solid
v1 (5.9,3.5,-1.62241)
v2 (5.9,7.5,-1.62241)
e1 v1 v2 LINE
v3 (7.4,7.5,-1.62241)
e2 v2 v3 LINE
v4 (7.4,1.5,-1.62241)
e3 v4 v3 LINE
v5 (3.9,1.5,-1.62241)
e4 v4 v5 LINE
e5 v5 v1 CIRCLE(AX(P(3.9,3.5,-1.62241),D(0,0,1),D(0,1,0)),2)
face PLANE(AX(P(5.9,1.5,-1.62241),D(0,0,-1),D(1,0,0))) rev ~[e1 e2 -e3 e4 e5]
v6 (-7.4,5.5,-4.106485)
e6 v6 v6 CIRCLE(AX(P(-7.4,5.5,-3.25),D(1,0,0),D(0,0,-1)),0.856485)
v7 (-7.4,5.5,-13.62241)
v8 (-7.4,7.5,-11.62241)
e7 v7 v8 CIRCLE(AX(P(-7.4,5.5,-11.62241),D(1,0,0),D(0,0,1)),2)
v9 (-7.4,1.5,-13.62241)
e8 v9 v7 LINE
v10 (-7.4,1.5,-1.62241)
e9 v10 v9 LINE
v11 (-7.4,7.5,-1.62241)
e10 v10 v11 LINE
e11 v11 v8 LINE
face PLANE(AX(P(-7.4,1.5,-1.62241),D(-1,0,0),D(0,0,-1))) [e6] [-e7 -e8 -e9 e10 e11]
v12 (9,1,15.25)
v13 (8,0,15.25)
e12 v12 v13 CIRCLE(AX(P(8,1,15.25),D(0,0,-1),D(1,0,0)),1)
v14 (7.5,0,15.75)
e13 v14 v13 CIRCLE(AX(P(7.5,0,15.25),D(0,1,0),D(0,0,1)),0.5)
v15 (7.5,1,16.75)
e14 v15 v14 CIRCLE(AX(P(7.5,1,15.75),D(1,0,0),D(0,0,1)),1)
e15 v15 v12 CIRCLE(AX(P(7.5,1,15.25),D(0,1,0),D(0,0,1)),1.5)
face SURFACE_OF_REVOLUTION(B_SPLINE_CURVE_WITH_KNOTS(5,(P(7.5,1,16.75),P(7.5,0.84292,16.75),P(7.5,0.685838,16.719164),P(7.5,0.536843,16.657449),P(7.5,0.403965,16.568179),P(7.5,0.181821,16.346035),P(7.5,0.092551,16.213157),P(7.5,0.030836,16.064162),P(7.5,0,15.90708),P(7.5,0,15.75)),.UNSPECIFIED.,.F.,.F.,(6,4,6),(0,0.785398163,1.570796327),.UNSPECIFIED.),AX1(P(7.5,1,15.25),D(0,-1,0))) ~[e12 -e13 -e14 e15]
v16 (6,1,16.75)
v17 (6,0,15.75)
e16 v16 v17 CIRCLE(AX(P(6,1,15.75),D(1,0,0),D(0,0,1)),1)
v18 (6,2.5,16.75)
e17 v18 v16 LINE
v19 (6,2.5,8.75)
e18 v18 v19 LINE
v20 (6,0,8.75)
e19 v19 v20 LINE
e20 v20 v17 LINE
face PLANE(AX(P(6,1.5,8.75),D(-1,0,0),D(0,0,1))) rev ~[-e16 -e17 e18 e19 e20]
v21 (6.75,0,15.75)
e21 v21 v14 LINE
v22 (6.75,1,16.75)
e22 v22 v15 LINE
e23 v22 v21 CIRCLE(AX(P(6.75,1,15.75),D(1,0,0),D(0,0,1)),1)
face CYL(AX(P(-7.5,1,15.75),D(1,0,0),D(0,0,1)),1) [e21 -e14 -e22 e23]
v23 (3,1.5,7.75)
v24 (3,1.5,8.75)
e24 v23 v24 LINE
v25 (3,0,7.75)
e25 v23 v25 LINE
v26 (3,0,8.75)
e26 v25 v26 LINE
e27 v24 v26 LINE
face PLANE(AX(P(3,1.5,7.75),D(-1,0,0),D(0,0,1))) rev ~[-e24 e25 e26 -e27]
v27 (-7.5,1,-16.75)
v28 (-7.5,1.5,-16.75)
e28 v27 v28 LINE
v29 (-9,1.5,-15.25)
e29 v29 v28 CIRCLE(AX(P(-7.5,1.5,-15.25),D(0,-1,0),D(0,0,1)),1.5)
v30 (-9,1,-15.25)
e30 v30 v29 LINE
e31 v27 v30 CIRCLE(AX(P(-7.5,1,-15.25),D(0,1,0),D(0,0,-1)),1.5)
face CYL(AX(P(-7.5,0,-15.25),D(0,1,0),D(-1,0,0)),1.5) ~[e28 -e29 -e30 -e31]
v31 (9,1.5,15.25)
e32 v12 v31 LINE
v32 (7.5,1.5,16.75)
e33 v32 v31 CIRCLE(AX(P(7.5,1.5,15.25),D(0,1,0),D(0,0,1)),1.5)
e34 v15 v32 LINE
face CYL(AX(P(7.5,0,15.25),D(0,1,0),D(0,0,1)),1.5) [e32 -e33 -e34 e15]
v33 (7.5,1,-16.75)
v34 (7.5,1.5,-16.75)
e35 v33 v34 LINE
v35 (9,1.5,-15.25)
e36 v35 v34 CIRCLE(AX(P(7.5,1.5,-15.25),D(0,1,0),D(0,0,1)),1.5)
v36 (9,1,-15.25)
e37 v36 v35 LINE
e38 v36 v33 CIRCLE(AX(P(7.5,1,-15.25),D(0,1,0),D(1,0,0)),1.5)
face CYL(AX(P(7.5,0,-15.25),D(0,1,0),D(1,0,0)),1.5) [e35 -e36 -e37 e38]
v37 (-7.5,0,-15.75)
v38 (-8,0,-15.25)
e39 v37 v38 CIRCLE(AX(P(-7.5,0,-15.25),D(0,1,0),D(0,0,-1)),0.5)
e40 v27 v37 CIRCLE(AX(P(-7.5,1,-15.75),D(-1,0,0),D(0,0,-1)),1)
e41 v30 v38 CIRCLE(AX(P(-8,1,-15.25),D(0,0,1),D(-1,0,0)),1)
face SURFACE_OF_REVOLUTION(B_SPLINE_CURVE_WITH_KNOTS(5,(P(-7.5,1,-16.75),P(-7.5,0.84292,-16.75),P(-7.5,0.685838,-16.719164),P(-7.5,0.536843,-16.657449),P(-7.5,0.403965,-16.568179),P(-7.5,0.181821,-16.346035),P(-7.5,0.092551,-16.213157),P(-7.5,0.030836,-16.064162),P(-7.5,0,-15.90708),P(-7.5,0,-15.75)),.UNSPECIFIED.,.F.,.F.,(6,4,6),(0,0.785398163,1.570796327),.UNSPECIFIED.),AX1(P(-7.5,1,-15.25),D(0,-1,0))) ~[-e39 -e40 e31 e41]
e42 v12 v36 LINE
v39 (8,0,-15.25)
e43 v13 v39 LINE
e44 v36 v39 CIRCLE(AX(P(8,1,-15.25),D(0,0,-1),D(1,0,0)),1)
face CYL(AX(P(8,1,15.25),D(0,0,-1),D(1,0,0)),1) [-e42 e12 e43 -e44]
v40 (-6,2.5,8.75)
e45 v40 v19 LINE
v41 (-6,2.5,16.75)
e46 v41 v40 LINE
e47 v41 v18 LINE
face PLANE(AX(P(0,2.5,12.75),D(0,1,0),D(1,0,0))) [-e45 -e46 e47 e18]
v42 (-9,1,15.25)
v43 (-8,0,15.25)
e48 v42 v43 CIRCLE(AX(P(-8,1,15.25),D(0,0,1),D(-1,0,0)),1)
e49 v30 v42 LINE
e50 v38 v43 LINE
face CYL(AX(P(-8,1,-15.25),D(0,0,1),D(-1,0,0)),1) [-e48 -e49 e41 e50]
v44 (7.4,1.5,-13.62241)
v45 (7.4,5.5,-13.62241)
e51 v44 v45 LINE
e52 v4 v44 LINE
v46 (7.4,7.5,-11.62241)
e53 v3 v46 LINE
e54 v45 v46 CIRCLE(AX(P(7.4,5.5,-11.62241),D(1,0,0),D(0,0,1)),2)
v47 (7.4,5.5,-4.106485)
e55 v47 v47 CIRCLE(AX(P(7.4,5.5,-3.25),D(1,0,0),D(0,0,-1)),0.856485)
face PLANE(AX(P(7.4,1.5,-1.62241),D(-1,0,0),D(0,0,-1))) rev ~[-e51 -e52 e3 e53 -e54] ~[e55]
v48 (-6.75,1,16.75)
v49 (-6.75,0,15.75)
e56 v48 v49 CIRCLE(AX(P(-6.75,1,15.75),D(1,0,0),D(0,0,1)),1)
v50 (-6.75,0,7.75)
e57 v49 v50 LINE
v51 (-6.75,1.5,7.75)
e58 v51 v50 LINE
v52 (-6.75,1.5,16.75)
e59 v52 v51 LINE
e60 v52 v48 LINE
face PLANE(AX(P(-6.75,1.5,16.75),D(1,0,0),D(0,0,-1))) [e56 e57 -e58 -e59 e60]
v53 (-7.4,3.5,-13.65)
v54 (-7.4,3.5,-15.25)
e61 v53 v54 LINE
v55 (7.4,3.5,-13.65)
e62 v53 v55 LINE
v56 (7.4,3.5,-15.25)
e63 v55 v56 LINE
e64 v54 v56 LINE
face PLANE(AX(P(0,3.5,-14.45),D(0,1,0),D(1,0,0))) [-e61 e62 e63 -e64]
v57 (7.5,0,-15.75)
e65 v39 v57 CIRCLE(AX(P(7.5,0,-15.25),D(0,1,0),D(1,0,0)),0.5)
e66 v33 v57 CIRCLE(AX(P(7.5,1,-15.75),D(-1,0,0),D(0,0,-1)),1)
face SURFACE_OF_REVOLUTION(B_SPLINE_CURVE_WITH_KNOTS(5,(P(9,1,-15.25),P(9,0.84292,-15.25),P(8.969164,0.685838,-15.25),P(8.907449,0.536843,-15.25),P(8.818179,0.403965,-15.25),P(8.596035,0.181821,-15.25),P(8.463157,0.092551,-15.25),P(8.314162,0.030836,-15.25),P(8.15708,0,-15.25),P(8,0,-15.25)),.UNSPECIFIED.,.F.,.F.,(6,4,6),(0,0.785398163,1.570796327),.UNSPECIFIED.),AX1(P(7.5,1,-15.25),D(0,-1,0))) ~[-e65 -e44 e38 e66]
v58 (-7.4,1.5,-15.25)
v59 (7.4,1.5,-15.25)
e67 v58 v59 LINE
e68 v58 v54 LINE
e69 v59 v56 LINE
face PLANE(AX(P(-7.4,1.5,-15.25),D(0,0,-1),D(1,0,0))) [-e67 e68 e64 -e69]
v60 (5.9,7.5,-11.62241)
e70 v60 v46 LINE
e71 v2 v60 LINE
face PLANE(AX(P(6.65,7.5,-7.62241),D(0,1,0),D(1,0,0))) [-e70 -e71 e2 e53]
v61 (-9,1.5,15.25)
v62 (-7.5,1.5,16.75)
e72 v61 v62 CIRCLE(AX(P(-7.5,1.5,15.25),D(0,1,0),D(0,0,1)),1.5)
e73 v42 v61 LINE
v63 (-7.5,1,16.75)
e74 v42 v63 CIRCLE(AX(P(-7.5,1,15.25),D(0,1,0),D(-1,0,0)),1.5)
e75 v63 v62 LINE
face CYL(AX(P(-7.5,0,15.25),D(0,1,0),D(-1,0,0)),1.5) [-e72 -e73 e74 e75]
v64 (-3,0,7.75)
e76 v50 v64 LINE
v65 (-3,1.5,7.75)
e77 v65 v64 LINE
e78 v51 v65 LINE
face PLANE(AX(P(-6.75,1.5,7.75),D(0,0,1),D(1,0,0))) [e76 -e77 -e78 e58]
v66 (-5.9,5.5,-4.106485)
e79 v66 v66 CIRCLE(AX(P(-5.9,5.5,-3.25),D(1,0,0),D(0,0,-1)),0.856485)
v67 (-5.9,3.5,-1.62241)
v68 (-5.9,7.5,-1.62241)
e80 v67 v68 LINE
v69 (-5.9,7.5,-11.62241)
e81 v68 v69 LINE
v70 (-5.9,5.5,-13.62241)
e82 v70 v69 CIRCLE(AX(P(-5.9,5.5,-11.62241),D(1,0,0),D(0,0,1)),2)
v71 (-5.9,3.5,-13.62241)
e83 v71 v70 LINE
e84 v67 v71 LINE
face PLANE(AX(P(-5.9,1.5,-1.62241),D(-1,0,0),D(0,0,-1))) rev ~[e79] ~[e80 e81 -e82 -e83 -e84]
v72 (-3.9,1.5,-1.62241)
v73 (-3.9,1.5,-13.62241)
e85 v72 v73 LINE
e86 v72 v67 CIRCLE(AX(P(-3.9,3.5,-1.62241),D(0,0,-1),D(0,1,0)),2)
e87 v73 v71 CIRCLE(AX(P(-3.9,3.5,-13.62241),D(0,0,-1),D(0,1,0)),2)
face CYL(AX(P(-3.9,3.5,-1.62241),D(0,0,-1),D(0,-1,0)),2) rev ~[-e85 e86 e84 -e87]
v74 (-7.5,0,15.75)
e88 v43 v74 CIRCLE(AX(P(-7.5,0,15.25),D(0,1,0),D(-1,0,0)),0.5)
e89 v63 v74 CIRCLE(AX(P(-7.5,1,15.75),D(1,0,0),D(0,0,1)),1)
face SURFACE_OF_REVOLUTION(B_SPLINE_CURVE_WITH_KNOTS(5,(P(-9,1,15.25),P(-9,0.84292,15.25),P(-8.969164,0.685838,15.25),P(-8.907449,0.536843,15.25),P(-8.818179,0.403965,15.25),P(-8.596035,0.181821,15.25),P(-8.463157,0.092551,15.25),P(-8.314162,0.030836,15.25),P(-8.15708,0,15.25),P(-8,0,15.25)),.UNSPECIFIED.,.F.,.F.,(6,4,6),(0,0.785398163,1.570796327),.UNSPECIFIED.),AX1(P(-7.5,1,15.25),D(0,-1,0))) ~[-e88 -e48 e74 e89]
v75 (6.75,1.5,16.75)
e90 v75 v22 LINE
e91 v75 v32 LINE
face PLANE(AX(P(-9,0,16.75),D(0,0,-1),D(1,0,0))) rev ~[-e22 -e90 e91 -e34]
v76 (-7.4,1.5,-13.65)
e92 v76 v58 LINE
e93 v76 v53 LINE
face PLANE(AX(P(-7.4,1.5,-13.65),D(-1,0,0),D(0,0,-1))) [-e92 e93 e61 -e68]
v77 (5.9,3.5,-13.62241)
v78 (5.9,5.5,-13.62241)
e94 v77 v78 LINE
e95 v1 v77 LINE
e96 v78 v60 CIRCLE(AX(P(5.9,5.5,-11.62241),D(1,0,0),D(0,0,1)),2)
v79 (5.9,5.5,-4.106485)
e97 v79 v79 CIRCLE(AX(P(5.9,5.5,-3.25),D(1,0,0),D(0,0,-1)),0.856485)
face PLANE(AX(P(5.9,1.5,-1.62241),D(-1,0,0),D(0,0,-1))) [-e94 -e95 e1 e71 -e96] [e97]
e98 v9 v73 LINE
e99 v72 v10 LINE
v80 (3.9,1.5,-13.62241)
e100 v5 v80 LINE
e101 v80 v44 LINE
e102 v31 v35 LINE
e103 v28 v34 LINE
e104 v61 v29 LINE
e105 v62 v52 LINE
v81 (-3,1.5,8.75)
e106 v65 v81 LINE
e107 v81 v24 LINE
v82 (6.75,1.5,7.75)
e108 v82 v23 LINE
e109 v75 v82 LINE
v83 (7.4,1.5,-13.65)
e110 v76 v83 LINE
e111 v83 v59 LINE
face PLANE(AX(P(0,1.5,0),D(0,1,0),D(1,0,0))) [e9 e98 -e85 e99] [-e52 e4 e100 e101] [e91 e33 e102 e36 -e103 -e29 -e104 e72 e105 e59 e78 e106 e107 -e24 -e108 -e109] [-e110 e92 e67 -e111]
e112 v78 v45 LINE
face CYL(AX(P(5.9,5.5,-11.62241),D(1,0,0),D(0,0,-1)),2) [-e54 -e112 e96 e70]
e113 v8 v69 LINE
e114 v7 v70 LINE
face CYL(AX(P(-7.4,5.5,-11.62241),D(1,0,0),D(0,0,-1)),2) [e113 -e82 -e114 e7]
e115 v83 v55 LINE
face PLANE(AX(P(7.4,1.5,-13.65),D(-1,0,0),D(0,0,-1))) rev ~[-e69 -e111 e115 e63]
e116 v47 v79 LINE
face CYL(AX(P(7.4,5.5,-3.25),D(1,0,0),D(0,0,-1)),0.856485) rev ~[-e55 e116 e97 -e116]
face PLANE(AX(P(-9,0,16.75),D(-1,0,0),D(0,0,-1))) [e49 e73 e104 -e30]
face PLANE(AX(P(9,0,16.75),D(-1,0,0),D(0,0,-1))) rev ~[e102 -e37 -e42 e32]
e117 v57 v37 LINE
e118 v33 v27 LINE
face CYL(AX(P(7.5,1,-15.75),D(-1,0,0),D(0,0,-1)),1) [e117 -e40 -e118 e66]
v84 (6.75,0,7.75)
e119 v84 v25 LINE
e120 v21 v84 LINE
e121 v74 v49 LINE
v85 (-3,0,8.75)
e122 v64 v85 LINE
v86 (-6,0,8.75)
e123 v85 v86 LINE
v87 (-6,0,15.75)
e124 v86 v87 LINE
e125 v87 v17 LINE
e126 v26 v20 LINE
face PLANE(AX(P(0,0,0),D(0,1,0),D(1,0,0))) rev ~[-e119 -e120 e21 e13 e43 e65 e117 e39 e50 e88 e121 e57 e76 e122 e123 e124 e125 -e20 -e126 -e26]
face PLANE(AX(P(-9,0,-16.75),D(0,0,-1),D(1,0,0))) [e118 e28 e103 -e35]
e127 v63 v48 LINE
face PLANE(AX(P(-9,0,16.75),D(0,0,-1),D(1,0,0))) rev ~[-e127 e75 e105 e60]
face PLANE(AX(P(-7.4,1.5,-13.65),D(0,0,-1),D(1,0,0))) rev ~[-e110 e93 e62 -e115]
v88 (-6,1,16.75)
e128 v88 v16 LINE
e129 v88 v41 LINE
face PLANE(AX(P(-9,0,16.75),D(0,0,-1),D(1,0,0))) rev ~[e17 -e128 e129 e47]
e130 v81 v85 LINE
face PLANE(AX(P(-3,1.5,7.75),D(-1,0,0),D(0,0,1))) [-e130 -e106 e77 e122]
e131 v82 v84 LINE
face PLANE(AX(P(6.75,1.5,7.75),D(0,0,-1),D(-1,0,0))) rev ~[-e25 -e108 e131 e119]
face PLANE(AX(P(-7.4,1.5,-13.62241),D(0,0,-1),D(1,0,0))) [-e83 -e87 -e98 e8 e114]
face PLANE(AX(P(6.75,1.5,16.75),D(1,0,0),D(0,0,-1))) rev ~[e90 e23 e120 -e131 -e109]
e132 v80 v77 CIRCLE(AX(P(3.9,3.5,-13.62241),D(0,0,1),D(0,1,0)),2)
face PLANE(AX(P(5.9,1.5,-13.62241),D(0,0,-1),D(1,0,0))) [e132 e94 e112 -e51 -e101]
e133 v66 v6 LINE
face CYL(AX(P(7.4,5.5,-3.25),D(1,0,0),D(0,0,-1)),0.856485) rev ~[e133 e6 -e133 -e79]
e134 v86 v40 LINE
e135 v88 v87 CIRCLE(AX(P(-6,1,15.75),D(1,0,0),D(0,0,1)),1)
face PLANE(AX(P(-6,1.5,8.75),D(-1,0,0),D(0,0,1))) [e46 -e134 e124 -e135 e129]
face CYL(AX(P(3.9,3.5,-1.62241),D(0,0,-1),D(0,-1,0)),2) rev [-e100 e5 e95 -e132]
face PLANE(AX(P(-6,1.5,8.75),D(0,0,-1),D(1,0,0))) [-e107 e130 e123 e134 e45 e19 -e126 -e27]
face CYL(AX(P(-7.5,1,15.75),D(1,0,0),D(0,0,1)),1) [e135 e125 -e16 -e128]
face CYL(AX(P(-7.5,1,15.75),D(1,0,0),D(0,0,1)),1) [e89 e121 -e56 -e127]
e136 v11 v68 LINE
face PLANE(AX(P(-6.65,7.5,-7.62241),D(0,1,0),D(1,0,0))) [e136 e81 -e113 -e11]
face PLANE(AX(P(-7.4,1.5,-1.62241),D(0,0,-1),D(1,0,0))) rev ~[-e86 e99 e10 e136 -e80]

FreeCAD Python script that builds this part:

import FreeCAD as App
import Part
import Sketcher

V = App.Vector


def edges_at(feature, points):
    """Names of the edges that pass closest to the given points."""
    edges = feature.Shape.Edges
    near = lambda p: min(range(len(edges)), key=lambda i: edges[i].distToShape(Part.Vertex(*p))[0])
    return sorted({f"Edge{near(p) + 1}" for p in points})


def add_polygon(sketch, points):
    """Adds a closed chain of lines whose ends are joined by coincident constraints."""
    first, n = sketch.GeometryCount, len(points)
    for a, b in zip(points, points[1:] + points[:1]):
        sketch.addGeometry(Part.LineSegment(App.Vector(*a, 0), App.Vector(*b, 0)), False)
    for i in range(n):
        sketch.addConstraint(Sketcher.Constraint("Coincident", first + i, 2, first + (i + 1) % n, 1))

doc = App.newDocument("Part")
body = doc.addObject("PartDesign::Body", "Body")

# Sketch on XZ plane
sketch1 = body.newObject("Sketcher::SketchObject", "Sketch")
sketch1.AttachmentSupport = (doc.getObject("XZ_Plane"), [""])
sketch1.MapMode = "FlatFace"
add_polygon(sketch1, [(-9, -17), (-9, 17), (9, 17), (9, -17)])  # lines 0-3
sketch1.addConstraint(Sketcher.Constraint("Vertical", 0))
sketch1.addConstraint(Sketcher.Constraint("Horizontal", 1))
sketch1.addConstraint(Sketcher.Constraint("Vertical", 2))
sketch1.addConstraint(Sketcher.Constraint("Horizontal", 3))
sketch1.addConstraint(Sketcher.Constraint("Symmetric", 0, 2, 2, 2, -1, 1))
sketch1.addConstraint(Sketcher.Constraint("DistanceX", 1, 1, 1, 2, 18.0))
sketch1.addConstraint(Sketcher.Constraint("DistanceY", 0, 1, 0, 2, 33.5))
pad1 = body.newObject("PartDesign::Pad", "Pad")
pad1.Profile = sketch1
pad1.Length = 1.5
pad1.Reversed = True
doc.recompute()

fillet = body.newObject("PartDesign::Fillet", "Fillet")
fillet.Base = (pad1, edges_at(pad1, [
    (-9, 0.75, -16.75),
    (9, 0.75, -16.75),
    (9, 0.75, 16.75),
    (-9, 0.75, 16.75),
]))
fillet.Radius = 1.5

# Sketch on XZ plane
sketch2 = body.newObject("Sketcher::SketchObject", "Sketch001")
sketch2.AttachmentSupport = (doc.getObject("XZ_Plane"), [""])
sketch2.MapMode = "FlatFace"
sketch2.AttachmentOffset = App.Placement(V(0, 0, -1.5), App.Rotation())
add_polygon(sketch2, [(-7.4, -13.6), (-7.4, -1.6), (-5.9, -1.6), (-5.9, -13.6)])  # lines 0-3
add_polygon(sketch2, [(5.9, -13.6), (5.9, -1.6), (7.4, -1.6), (7.4, -13.6)])  # lines 4-7
sketch2.addConstraint(Sketcher.Constraint("Vertical", 0))
sketch2.addConstraint(Sketcher.Constraint("Horizontal", 1))
sketch2.addConstraint(Sketcher.Constraint("Vertical", 2))
sketch2.addConstraint(Sketcher.Constraint("Horizontal", 3))
sketch2.addConstraint(Sketcher.Constraint("Vertical", 4))
sketch2.addConstraint(Sketcher.Constraint("Horizontal", 5))
sketch2.addConstraint(Sketcher.Constraint("Vertical", 6))
sketch2.addConstraint(Sketcher.Constraint("Horizontal", 7))
sketch2.addConstraint(Sketcher.Constraint("Symmetric", 1, 2, 4, 2, -2))
sketch2.addConstraint(Sketcher.Constraint("Symmetric", 3, 2, 6, 2, -2))
sketch2.addConstraint(Sketcher.Constraint("DistanceY", 0, 1, 0, 2, 12.0))
sketch2.addConstraint(Sketcher.Constraint("DistanceX", 1, 1, 1, 2, 1.5))
sketch2.addConstraint(Sketcher.Constraint("DistanceX", 0, 2, -1, 1, 7.4))
sketch2.addConstraint(Sketcher.Constraint("DistanceY", 0, 2, -1, 1, 1.62241))
pad2 = body.newObject("PartDesign::Pad", "Pad001")
pad2.Profile = sketch2
pad2.Length = 6
pad2.Reversed = True

# Sketch on XZ plane
sketch3 = body.newObject("Sketcher::SketchObject", "Sketch002")
sketch3.AttachmentSupport = (doc.getObject("XZ_Plane"), [""])
sketch3.MapMode = "FlatFace"
sketch3.AttachmentOffset = App.Placement(V(0, 0, -1.5), App.Rotation())
add_polygon(sketch3, [(-7.4, -15.2), (-7.4, -13.7), (7.4, -13.7), (7.4, -15.2)])  # lines 0-3
sketch3.addConstraint(Sketcher.Constraint("Vertical", 0))
sketch3.addConstraint(Sketcher.Constraint("Horizontal", 1))
sketch3.addConstraint(Sketcher.Constraint("Vertical", 2))
sketch3.addConstraint(Sketcher.Constraint("Horizontal", 3))
sketch3.addConstraint(Sketcher.Constraint("DistanceX", 1, 1, 1, 2, 14.8))
sketch3.addConstraint(Sketcher.Constraint("DistanceY", 0, 1, 0, 2, 1.6))
sketch3.addConstraint(Sketcher.Constraint("DistanceX", 0, 2, -1, 1, 7.4))
sketch3.addConstraint(Sketcher.Constraint("DistanceY", 0, 2, -1, 1, 13.65))
pad3 = body.newObject("PartDesign::Pad", "Pad002")
pad3.Profile = sketch3
pad3.Length = 2
pad3.Reversed = True
doc.recompute()

fillet2 = body.newObject("PartDesign::Fillet", "Fillet001")
fillet2.Base = (pad3, edges_at(pad3, [
    (-5.9, 1.5, -7.622),
    (-6.65, 7.5, -13.622),
    (5.9, 1.5, -7.622),
    (6.65, 7.5, -13.622),
]))
fillet2.Radius = 2

# Sketch on YZ plane
sketch4 = body.newObject("Sketcher::SketchObject", "Sketch003")
sketch4.AttachmentSupport = (doc.getObject("YZ_Plane"), [""])
sketch4.MapMode = "FlatFace"
sketch4.AttachmentOffset = App.Placement(V(0, 0, 7.4), App.Rotation())
sketch4.addGeometry(Part.Circle(V(5.5, -3.2, 0), V(0, 0, 1), 0.9), False)
sketch4.addConstraint(Sketcher.Constraint("DistanceX", -1, 1, 0, 3, 5.5))
sketch4.addConstraint(Sketcher.Constraint("Diameter", 0, 1.71297))
sketch4.addConstraint(Sketcher.Constraint("DistanceY", 0, 3, -1, 1, 3.25))
pocket1 = body.newObject("PartDesign::Pocket", "Pocket")
pocket1.Profile = sketch4
pocket1.Length = 18

# Sketch on XZ plane
sketch5 = body.newObject("Sketcher::SketchObject", "Sketch004")
sketch5.AttachmentSupport = (doc.getObject("XZ_Plane"), [""])
sketch5.MapMode = "FlatFace"
sketch5.AttachmentOffset = App.Placement(V(0, 0, -1.5), App.Rotation())
add_polygon(sketch5, [(-6, 9), (-6, 17), (6, 17), (6, 9)])  # lines 0-3
sketch5.addConstraint(Sketcher.Constraint("Vertical", 0))
sketch5.addConstraint(Sketcher.Constraint("Horizontal", 1))
sketch5.addConstraint(Sketcher.Constraint("Vertical", 2))
sketch5.addConstraint(Sketcher.Constraint("Horizontal", 3))
sketch5.addConstraint(Sketcher.Constraint("DistanceX", 1, 1, 1, 2, 12.0))
sketch5.addConstraint(Sketcher.Constraint("DistanceY", 0, 1, 0, 2, 8.0))
sketch5.addConstraint(Sketcher.Constraint("DistanceX", 0, 2, -1, 1, 6.0))
sketch5.addConstraint(Sketcher.Constraint("DistanceY", -1, 1, 0, 2, 16.75))
pad4 = body.newObject("PartDesign::Pad", "Pad003")
pad4.Profile = sketch5
pad4.Length = 1
pad4.Reversed = True
doc.recompute()

fillet3 = body.newObject("PartDesign::Fillet", "Fillet002")
fillet3.Base = (pad4, edges_at(pad4, [
    (9, 0, 0),
    (-9, 0, 0),
    (0, 0, -16.75),
    (0, 0, 16.75),
    (-8.561, 0, -16.311),
    (8.561, 0, -16.311),
    (-8.561, 0, 16.311),
    (8.561, 0, 16.311),
]))
fillet3.Radius = 1

# Sketch on XZ plane
sketch6 = body.newObject("Sketcher::SketchObject", "Sketch005")
sketch6.AttachmentSupport = (doc.getObject("XZ_Plane"), [""])
sketch6.MapMode = "FlatFace"
sketch6.AttachmentOffset = App.Placement(V(0, 0, -1.5), App.Rotation())
add_polygon(sketch6, [(-6.8, 16.8), (-6, 16.8), (-6, 8.8), (-3, 8.8), (-3, 7.8), (-6.8, 7.8)])  # lines 0-5
add_polygon(sketch6, [(6, 8.8), (6, 16.8), (6.8, 16.8), (6.8, 7.8), (3, 7.8), (3, 8.8)])  # lines 6-11
sketch6.addConstraint(Sketcher.Constraint("Horizontal", 0))
sketch6.addConstraint(Sketcher.Constraint("Vertical", 1))
sketch6.addConstraint(Sketcher.Constraint("Horizontal", 2))
sketch6.addConstraint(Sketcher.Constraint("Vertical", 3))
sketch6.addConstraint(Sketcher.Constraint("Horizontal", 4))
sketch6.addConstraint(Sketcher.Constraint("Vertical", 5))
sketch6.addConstraint(Sketcher.Constraint("Vertical", 6))
sketch6.addConstraint(Sketcher.Constraint("Horizontal", 7))
sketch6.addConstraint(Sketcher.Constraint("Vertical", 8))
sketch6.addConstraint(Sketcher.Constraint("Horizontal", 9))
sketch6.addConstraint(Sketcher.Constraint("Vertical", 10))
sketch6.addConstraint(Sketcher.Constraint("Horizontal", 11))
sketch6.addConstraint(Sketcher.Constraint("Symmetric", 0, 2, 6, 2, -2))
sketch6.addConstraint(Sketcher.Constraint("Symmetric", 4, 2, 8, 2, -2))
sketch6.addConstraint(Sketcher.Constraint("Symmetric", 2, 2, 10, 2, -2))
sketch6.addConstraint(Sketcher.Constraint("DistanceX", 2, 1, 2, 2, 3.0))
sketch6.addConstraint(Sketcher.Constraint("DistanceY", 1, 2, 1, 1, 8.0))
sketch6.addConstraint(Sketcher.Constraint("DistanceY", 3, 2, 3, 1, 1.0))
sketch6.addConstraint(Sketcher.Constraint("DistanceX", 0, 2, -1, 1, 6.0))
sketch6.addConstraint(Sketcher.Constraint("DistanceX", 0, 1, 0, 2, 0.75))
sketch6.addConstraint(Sketcher.Constraint("DistanceY", -1, 1, 0, 2, 16.75))
pocket2 = body.newObject("PartDesign::Pocket", "Pocket001")
pocket2.Profile = sketch6
pocket2.Length = 10
pocket2.Reversed = True

doc.recompute()
